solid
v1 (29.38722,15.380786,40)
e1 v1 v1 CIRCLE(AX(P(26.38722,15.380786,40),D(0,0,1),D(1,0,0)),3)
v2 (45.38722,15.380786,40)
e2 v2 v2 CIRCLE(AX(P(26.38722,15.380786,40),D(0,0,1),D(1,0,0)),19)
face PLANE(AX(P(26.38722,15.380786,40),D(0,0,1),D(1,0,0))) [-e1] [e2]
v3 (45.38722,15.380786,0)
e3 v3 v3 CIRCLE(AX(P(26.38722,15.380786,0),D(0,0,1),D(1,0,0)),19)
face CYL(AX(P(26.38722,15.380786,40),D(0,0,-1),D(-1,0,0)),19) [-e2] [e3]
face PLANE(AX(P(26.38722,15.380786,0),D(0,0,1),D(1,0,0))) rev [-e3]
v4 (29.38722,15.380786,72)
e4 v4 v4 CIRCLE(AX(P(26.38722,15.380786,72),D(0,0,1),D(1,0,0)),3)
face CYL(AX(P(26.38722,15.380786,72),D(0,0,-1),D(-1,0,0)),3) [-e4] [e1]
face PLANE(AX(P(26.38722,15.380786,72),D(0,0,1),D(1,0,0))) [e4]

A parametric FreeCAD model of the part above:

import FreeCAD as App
import Part
import Sketcher
from FreeCAD import Vector
Q = App.Units.Quantity

doc = App.newDocument("Part")
body = doc.addObject("PartDesign::Body", "Body")

sketch1 = body.newObject("Sketcher::SketchObject", "Sketch")
sketch1.AttachmentSupport = (doc.getObject("XY_Plane"), [""])
sketch1.MapMode = "FlatFace"
sketch1.addGeometry(Part.Circle(Vector(26.38722, 15.380786, 0), Vector(0, 0, 1), 19), False)
sketch1.addConstraint([
    Sketcher.Constraint("Diameter", 0, Q("38 mm")),
    Sketcher.Constraint("DistanceX", -1, 1, 0, 3, Q("26.38722 mm")),
    Sketcher.Constraint("DistanceY", -1, 1, 0, 3, Q("15.380786 mm")),
])
pad1 = body.newObject("PartDesign::Pad", "Pad")
pad1.Profile = sketch1
pad1.Length = 40

sketch2 = body.newObject("Sketcher::SketchObject", "Sketch001")
sketch2.AttachmentSupport = (doc.getObject("XY_Plane"), [""])
sketch2.MapMode = "FlatFace"
sketch2.AttachmentOffset = App.Placement(Vector(0, 0, 40), App.Rotation())
sketch2.addGeometry(Part.Circle(Vector(26.38722, 15.380786, 0), Vector(0, 0, 1), 3), False)
sketch2.addConstraint([
    Sketcher.Constraint("Diameter", 0, Q("6 mm")),
    Sketcher.Constraint("DistanceX", -1, 1, 0, 3, Q("26.38722 mm")),
    Sketcher.Constraint("DistanceY", -1, 1, 0, 3, Q("15.380786 mm")),
])
pad2 = body.newObject("PartDesign::Pad", "Pad001")
pad2.Profile = sketch2
pad2.Length = 32

doc.recompute()
